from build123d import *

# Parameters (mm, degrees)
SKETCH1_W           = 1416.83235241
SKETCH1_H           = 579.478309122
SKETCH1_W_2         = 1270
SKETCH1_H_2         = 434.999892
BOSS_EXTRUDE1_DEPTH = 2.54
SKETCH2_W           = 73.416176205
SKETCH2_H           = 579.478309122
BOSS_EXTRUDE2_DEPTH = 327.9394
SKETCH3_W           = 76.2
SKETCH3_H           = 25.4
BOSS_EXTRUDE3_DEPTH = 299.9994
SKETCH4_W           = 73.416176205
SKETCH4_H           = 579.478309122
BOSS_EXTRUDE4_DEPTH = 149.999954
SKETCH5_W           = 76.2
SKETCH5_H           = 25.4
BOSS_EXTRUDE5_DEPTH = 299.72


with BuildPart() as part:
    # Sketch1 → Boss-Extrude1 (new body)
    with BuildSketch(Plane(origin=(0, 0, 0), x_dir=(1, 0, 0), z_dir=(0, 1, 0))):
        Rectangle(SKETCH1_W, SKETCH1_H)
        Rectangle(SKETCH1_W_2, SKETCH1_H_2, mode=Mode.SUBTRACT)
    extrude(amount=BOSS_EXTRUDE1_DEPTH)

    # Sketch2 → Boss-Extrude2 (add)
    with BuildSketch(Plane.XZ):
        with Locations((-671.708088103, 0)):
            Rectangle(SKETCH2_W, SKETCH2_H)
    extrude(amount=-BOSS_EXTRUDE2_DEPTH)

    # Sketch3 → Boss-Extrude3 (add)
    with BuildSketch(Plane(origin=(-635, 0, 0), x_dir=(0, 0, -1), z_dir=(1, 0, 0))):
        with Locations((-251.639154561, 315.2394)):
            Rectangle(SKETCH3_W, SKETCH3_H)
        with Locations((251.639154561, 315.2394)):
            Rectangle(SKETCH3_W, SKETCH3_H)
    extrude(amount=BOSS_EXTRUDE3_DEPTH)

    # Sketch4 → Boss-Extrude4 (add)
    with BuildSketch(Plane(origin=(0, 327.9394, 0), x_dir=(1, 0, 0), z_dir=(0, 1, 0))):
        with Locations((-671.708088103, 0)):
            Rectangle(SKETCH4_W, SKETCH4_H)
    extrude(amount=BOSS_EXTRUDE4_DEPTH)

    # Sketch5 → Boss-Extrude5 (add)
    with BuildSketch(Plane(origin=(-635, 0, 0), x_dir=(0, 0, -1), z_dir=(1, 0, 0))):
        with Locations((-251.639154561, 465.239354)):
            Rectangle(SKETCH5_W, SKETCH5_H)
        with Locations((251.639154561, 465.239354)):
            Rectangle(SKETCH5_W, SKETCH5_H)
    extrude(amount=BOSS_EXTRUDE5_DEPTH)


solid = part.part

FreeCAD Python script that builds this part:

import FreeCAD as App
import Part
import Sketcher

V = App.Vector
Q = App.Units.Quantity


def add_polygon(sketch, points):
    """Adds a closed chain of lines whose ends are joined by coincident constraints."""
    first, n = sketch.GeometryCount, len(points)
    for a, b in zip(points, points[1:] + points[:1]):
        sketch.addGeometry(Part.LineSegment(App.Vector(*a, 0), App.Vector(*b, 0)), False)
    for i in range(n):
        sketch.addConstraint(Sketcher.Constraint("Coincident", first + i, 2, first + (i + 1) % n, 1))

doc = App.newDocument("Part")
body = doc.addObject("PartDesign::Body", "Body")

# Sketch on XZ plane
sketch1 = body.newObject("Sketcher::SketchObject", "Sketch")
sketch1.AttachmentSupport = (doc.getObject("XZ_Plane"), [""])
sketch1.MapMode = "FlatFace"
add_polygon(sketch1, [(-708.416176, -289.739155), (-708.416176, 289.739155), (708.416176, 289.739155), (708.416176, -289.739155)])  # lines 0-3
add_polygon(sketch1, [(635, 217.499946), (-635, 217.499946), (-635, -217.499946), (635, -217.499946)])  # lines 4-7
sketch1.addConstraint([
    Sketcher.Constraint("Vertical", 0),
    Sketcher.Constraint("Horizontal", 1),
    Sketcher.Constraint("Vertical", 2),
    Sketcher.Constraint("Horizontal", 3),
    Sketcher.Constraint("Horizontal", 4),
    Sketcher.Constraint("Vertical", 5),
    Sketcher.Constraint("Horizontal", 6),
    Sketcher.Constraint("Vertical", 7),
    Sketcher.Constraint("Symmetric", 0, 2, 2, 2, -1, 1),
    Sketcher.Constraint("Symmetric", 4, 2, 6, 2, -1, 1),
    Sketcher.Constraint("DistanceX", 4, 2, 4, 1, Q("50 in")),
    Sketcher.Constraint("DistanceY", 0, 1, 0, 2, Q("579.478309 mm")),
    Sketcher.Constraint("DistanceY", 5, 2, 5, 1, Q("434.999892 mm")),
    Sketcher.Constraint("DistanceX", 1, 1, 1, 2, Q("1416.832352 mm")),
])
pad1 = body.newObject("PartDesign::Pad", "Pad")
pad1.Profile = sketch1
pad1.Length = Q("0.1 in")
pad1.Reversed = True

# Sketch on XZ plane
sketch2 = body.newObject("Sketcher::SketchObject", "Sketch001")
sketch2.AttachmentSupport = (doc.getObject("XZ_Plane"), [""])
sketch2.MapMode = "FlatFace"
add_polygon(sketch2, [(-708.416176, 289.739155), (-708.416176, -289.739155), (-635, -289.739155), (-635, 289.739155)])  # lines 0-3
sketch2.addConstraint([
    Sketcher.Constraint("Vertical", 0),
    Sketcher.Constraint("Horizontal", 1),
    Sketcher.Constraint("Vertical", 2),
    Sketcher.Constraint("Horizontal", 3),
    Sketcher.Constraint("DistanceX", 1, 2, -1, 1, Q("25 in")),
    Sketcher.Constraint("DistanceY", 0, 2, 0, 1, Q("579.478309 mm")),
    Sketcher.Constraint("DistanceX", 1, 1, 1, 2, Q("73.416176 mm")),
    Sketcher.Constraint("DistanceY", 0, 2, -1, 1, Q("289.739155 mm")),
])
pad2 = body.newObject("PartDesign::Pad", "Pad001")
pad2.Profile = sketch2
pad2.Length = Q("12.911 in")
pad2.Reversed = True

# Sketch on YZ plane
sketch3 = body.newObject("Sketcher::SketchObject", "Sketch002")
sketch3.AttachmentSupport = (doc.getObject("YZ_Plane"), [""])
sketch3.MapMode = "FlatFace"
sketch3.AttachmentOffset = App.Placement(V(0, 0, -25 * 25.4), App.Rotation())
add_polygon(sketch3, [(327.9394, 289.739155), (302.5394, 289.739155), (302.5394, 213.539155), (327.9394, 213.539155)])  # lines 0-3
add_polygon(sketch3, [(327.9394, -213.539155), (302.5394, -213.539155), (302.5394, -289.739155), (327.9394, -289.739155)])  # lines 4-7
sketch3.addConstraint([
    Sketcher.Constraint("Horizontal", 0),
    Sketcher.Constraint("Vertical", 1),
    Sketcher.Constraint("Horizontal", 2),
    Sketcher.Constraint("Vertical", 3),
    Sketcher.Constraint("Horizontal", 4),
    Sketcher.Constraint("Vertical", 5),
    Sketcher.Constraint("Horizontal", 6),
    Sketcher.Constraint("Vertical", 7),
    Sketcher.Constraint("Symmetric", 1, 2, 4, 2, -1),
    Sketcher.Constraint("Symmetric", 3, 2, 6, 2, -1),
    Sketcher.Constraint("DistanceX", 0, 2, 0, 1, Q("1 in")),
    Sketcher.Constraint("DistanceY", 1, 2, 1, 1, Q("3 in")),
    Sketcher.Constraint("DistanceX", -1, 1, 0, 2, Q("11.911 in")),
    Sketcher.Constraint("DistanceY", 4, 2, 1, 2, Q("427.078309 mm")),
])
pad3 = body.newObject("PartDesign::Pad", "Pad002")
pad3.Profile = sketch3
pad3.Length = Q("11.811 in")

# Sketch on XZ plane
sketch4 = body.newObject("Sketcher::SketchObject", "Sketch003")
sketch4.AttachmentSupport = (doc.getObject("XZ_Plane"), [""])
sketch4.MapMode = "FlatFace"
sketch4.AttachmentOffset = App.Placement(V(0, 0, -12.911 * 25.4), App.Rotation())
add_polygon(sketch4, [(-708.416176, -289.739155), (-708.416176, 289.739155), (-635, 289.739155), (-635, -289.739155)])  # lines 0-3
sketch4.addConstraint([
    Sketcher.Constraint("Vertical", 0),
    Sketcher.Constraint("Horizontal", 1),
    Sketcher.Constraint("Vertical", 2),
    Sketcher.Constraint("Horizontal", 3),
    Sketcher.Constraint("DistanceX", 1, 2, -1, 1, Q("25 in")),
    Sketcher.Constraint("DistanceY", 0, 1, 0, 2, Q("579.478309 mm")),
    Sketcher.Constraint("DistanceX", 1, 1, 1, 2, Q("73.416176 mm")),
    Sketcher.Constraint("DistanceY", -1, 1, 0, 2, Q("289.739155 mm")),
])
pad4 = body.newObject("PartDesign::Pad", "Pad003")
pad4.Profile = sketch4
pad4.Length = 149.999954
pad4.Reversed = True

# Sketch on YZ plane
sketch5 = body.newObject("Sketcher::SketchObject", "Sketch004")
sketch5.AttachmentSupport = (doc.getObject("YZ_Plane"), [""])
sketch5.MapMode = "FlatFace"
sketch5.AttachmentOffset = App.Placement(V(0, 0, -25 * 25.4), App.Rotation())
add_polygon(sketch5, [(477.939354, 289.739155), (452.539354, 289.739155), (452.539354, 213.539155), (477.939354, 213.539155)])  # lines 0-3
add_polygon(sketch5, [(477.939354, -213.539155), (452.539354, -213.539155), (452.539354, -289.739155), (477.939354, -289.739155)])  # lines 4-7
sketch5.addConstraint([
    Sketcher.Constraint("Horizontal", 0),
    Sketcher.Constraint("Vertical", 1),
    Sketcher.Constraint("Horizontal", 2),
    Sketcher.Constraint("Vertical", 3),
    Sketcher.Constraint("Horizontal", 4),
    Sketcher.Constraint("Vertical", 5),
    Sketcher.Constraint("Horizontal", 6),
    Sketcher.Constraint("Vertical", 7),
    Sketcher.Constraint("Symmetric", 1, 2, 4, 2, -1),
    Sketcher.Constraint("Symmetric", 3, 2, 6, 2, -1),
    Sketcher.Constraint("DistanceX", 0, 2, 0, 1, Q("1 in")),
    Sketcher.Constraint("DistanceY", 1, 2, 1, 1, Q("3 in")),
    Sketcher.Constraint("DistanceY", 4, 2, 1, 2, Q("427.078309 mm")),
    Sketcher.Constraint("DistanceX", -1, 1, 0, 2, Q("452.539354 mm")),
])
pad5 = body.newObject("PartDesign::Pad", "Pad004")
pad5.Profile = sketch5
pad5.Length = Q("11.8 in")

doc.recompute()
